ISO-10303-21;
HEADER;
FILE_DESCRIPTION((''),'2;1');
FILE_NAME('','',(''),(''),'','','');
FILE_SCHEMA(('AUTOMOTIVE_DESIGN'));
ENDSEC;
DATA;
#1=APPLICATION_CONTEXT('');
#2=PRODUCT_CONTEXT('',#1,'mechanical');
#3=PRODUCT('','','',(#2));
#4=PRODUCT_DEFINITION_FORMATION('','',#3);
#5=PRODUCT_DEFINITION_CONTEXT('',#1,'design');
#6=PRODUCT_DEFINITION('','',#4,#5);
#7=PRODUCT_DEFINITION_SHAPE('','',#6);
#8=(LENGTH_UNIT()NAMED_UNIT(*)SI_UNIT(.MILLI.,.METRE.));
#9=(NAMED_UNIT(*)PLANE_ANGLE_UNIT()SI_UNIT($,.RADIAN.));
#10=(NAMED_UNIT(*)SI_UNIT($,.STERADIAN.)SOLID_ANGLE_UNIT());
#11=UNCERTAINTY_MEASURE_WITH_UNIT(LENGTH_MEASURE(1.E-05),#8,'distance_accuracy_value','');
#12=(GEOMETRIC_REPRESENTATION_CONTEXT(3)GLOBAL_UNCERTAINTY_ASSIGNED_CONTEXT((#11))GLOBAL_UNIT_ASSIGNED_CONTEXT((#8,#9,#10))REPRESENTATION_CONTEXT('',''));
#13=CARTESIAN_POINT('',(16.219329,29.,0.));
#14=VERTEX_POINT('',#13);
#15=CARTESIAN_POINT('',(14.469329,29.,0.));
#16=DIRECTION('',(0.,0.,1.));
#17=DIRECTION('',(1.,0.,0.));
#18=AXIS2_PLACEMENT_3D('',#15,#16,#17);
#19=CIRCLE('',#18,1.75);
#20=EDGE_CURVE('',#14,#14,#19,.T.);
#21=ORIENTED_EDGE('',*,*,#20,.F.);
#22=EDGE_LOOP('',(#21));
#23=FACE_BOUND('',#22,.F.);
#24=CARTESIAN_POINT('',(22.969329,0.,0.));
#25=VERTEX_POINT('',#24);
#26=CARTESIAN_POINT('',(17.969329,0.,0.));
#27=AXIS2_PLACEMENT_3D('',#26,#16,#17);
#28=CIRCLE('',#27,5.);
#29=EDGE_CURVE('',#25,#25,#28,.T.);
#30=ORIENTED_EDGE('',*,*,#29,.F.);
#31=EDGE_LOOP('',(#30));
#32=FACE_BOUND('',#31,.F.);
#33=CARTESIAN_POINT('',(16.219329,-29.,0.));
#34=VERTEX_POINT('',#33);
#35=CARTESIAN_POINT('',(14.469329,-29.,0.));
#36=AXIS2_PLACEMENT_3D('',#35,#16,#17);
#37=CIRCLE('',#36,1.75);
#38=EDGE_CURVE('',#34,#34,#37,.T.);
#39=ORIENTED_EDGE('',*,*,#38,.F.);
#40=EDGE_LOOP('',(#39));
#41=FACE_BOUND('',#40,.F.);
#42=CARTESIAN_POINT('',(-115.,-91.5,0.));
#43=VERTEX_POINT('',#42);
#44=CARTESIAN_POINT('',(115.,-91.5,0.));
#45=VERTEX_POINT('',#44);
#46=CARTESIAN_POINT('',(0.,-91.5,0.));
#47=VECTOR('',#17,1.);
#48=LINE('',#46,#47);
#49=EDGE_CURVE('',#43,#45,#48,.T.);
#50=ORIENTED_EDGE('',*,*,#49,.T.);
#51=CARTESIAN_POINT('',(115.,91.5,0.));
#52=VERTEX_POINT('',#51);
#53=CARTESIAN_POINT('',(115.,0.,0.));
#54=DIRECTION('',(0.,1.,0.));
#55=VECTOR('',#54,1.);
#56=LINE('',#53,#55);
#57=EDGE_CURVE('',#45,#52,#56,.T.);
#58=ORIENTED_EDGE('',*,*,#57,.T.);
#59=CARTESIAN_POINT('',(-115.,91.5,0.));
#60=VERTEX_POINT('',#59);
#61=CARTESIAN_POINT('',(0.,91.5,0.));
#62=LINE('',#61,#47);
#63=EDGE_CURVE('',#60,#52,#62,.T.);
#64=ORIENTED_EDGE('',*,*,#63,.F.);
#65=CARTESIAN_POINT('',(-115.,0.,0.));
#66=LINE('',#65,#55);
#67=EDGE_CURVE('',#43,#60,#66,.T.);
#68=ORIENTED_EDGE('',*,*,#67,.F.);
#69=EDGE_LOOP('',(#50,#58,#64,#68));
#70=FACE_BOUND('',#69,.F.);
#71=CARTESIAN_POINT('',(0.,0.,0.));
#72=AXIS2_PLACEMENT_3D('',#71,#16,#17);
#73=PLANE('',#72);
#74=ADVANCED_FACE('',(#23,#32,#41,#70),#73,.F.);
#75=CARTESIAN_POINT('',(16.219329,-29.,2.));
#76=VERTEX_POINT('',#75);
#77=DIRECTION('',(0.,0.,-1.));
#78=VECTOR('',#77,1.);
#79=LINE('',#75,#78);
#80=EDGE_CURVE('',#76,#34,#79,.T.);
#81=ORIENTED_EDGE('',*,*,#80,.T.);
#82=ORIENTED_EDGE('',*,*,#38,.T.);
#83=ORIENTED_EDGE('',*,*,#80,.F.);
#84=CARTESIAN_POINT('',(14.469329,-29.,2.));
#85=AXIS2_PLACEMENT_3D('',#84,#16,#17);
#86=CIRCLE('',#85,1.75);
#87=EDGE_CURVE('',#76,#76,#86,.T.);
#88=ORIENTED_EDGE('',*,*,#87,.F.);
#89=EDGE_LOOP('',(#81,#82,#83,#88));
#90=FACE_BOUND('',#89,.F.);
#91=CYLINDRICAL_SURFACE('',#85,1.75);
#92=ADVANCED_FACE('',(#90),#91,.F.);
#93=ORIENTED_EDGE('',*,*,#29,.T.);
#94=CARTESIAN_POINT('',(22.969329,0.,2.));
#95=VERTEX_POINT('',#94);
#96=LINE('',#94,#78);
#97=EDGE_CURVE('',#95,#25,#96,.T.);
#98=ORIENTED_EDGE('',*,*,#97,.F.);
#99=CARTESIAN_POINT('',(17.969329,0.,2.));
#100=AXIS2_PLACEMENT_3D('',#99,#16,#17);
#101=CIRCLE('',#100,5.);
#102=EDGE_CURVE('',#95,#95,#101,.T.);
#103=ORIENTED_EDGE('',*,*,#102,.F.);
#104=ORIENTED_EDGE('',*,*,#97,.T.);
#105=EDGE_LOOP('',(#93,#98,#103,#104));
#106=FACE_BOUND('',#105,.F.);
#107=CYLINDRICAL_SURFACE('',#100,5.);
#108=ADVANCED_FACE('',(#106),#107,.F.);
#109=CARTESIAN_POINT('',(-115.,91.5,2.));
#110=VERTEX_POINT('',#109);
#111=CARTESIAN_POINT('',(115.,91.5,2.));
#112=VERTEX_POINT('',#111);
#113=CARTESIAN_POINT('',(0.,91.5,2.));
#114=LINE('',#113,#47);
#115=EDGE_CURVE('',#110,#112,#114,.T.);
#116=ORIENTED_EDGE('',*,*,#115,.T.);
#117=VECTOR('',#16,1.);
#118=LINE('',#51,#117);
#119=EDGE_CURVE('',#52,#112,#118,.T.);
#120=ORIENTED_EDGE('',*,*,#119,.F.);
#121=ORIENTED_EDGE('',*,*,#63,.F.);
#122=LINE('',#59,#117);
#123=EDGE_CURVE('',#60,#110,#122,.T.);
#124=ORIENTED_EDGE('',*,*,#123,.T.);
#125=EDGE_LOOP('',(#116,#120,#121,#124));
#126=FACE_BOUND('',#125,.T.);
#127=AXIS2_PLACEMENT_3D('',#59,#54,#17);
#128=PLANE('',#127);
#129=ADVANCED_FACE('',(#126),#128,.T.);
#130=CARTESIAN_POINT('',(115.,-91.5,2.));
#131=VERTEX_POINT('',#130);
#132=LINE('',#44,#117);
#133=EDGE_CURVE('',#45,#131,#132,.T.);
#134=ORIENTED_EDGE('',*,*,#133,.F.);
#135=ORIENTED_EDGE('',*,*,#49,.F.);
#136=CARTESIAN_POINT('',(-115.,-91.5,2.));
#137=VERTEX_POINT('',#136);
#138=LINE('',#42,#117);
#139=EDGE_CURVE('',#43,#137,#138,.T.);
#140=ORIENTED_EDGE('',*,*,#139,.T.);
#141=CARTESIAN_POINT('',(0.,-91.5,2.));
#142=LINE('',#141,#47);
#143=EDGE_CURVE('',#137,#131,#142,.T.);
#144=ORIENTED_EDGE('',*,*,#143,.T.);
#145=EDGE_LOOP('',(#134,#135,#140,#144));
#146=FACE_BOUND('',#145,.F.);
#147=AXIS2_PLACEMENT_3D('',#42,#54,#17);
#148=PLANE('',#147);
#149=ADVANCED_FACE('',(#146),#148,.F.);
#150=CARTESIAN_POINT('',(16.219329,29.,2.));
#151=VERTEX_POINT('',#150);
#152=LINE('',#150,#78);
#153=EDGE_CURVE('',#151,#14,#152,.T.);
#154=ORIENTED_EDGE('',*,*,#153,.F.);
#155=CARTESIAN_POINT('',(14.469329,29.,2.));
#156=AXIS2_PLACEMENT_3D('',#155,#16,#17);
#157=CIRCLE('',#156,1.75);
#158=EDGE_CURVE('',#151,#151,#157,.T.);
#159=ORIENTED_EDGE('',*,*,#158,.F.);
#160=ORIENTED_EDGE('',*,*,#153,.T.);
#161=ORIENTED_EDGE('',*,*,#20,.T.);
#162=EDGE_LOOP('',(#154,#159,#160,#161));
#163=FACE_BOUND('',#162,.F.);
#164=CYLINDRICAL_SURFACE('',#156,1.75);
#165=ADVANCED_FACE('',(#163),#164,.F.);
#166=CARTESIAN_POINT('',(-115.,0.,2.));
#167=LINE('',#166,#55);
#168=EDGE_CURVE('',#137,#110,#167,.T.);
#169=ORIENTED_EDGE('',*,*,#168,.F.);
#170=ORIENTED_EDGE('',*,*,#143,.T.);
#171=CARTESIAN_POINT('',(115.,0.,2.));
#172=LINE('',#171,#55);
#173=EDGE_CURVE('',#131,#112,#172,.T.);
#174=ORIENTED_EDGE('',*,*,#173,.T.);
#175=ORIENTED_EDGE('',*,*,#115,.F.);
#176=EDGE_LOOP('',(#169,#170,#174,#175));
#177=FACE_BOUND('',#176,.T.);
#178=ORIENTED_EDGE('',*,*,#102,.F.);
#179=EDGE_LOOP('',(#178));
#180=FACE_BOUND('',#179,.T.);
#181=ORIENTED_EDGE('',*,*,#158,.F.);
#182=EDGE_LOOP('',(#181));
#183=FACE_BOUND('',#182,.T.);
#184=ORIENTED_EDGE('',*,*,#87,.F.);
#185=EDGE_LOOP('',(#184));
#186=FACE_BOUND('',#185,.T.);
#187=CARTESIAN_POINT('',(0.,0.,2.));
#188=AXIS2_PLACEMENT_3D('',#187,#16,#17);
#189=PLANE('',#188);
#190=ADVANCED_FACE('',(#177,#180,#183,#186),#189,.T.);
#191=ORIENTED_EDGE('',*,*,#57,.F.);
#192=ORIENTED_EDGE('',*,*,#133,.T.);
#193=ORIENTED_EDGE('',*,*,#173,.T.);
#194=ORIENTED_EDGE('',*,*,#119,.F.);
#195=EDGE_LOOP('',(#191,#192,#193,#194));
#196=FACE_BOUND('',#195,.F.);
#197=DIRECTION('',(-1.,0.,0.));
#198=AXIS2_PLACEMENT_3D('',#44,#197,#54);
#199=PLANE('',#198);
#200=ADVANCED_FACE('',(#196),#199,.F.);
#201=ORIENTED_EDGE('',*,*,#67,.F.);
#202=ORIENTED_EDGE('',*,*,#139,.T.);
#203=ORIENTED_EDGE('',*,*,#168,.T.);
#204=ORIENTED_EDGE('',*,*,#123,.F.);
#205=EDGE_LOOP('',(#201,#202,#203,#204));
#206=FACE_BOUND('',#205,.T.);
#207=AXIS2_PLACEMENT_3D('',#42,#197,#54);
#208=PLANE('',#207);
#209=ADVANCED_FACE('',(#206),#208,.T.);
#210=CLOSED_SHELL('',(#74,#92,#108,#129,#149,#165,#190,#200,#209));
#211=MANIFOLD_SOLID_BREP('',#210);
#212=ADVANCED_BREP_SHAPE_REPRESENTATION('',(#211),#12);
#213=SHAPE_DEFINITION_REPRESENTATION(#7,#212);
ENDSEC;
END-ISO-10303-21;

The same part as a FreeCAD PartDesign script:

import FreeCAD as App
import Part
import Sketcher

V = App.Vector
Q = App.Units.Quantity

doc = App.newDocument("Part")
body = doc.addObject("PartDesign::Body", "Body")

sketch1 = body.newObject("Sketcher::SketchObject", "Sketch")
sketch1.AttachmentSupport = (doc.getObject("XY_Plane"), [""])
sketch1.MapMode = "FlatFace"
sketch1.addGeometry([
    Part.LineSegment(V(-115, 92, 0), V(-115, -92, 0)),
    Part.LineSegment(V(-115, -92, 0), V(115, -92, 0)),
    Part.LineSegment(V(115, -92, 0), V(115, 92, 0)),
    Part.LineSegment(V(115, 92, 0), V(-115, 92, 0)),
], False)
sketch1.addConstraint([
    Sketcher.Constraint("Coincident", 0, 2, 1, 1),
    Sketcher.Constraint("Coincident", 1, 2, 2, 1),
    Sketcher.Constraint("Coincident", 2, 2, 3, 1),
    Sketcher.Constraint("Coincident", 3, 2, 0, 1),
    Sketcher.Constraint("Vertical", 0),
    Sketcher.Constraint("Horizontal", 1),
    Sketcher.Constraint("Vertical", 2),
    Sketcher.Constraint("Horizontal", 3),
    Sketcher.Constraint("Symmetric", 0, 2, 2, 2, -1, 1),
    Sketcher.Constraint("DistanceX", 1, 1, 1, 2, Q("230 mm")),
    Sketcher.Constraint("DistanceY", 0, 2, 0, 1, Q("183 mm")),
])
pad1 = body.newObject("PartDesign::Pad", "Pad")
pad1.Profile = sketch1
pad1.Length = 2

sketch2 = body.newObject("Sketcher::SketchObject", "Sketch001")
sketch2.AttachmentSupport = (doc.getObject("XY_Plane"), [""])
sketch2.MapMode = "FlatFace"
sketch2.AttachmentOffset = App.Placement(V(0, 0, 2), App.Rotation())
sketch2.addGeometry(Part.Circle(V(18, 0, 0), V(0, 0, 1), 5), False)
sketch2.addConstraint([
    Sketcher.Constraint("PointOnObject", 0, 3, -1),
    Sketcher.Constraint("Diameter", 0, Q("10 mm")),
    Sketcher.Constraint("DistanceX", -1, 1, 0, 3, Q("17.969329 mm")),
])
pocket1 = body.newObject("PartDesign::Pocket", "Pocket")
pocket1.Profile = sketch2
pocket1.Type = "ThroughAll"

sketch3 = body.newObject("Sketcher::SketchObject", "Sketch002")
sketch3.AttachmentSupport = (doc.getObject("XY_Plane"), [""])
sketch3.MapMode = "FlatFace"
sketch3.AttachmentOffset = App.Placement(V(0, 0, 2), App.Rotation())
sketch3.addGeometry([
    Part.Circle(V(14.5, 29, 0), V(0, 0, 1), 1.8),
    Part.Circle(V(14.5, -29, 0), V(0, 0, 1), 1.8),
], False)
sketch3.addConstraint([
    Sketcher.Constraint("Equal", 0, 1),
    Sketcher.Constraint("Symmetric", 0, 3, 1, 3, -1),
    Sketcher.Constraint("Diameter", 0, Q("3.5 mm")),
    Sketcher.Constraint("DistanceY", -1, 1, 0, 3, Q("29 mm")),
    Sketcher.Constraint("DistanceX", -1, 1, 0, 3, Q("14.469329 mm")),
])
pocket2 = body.newObject("PartDesign::Pocket", "Pocket001")
pocket2.Profile = sketch3
pocket2.Type = "ThroughAll"

doc.recompute()
